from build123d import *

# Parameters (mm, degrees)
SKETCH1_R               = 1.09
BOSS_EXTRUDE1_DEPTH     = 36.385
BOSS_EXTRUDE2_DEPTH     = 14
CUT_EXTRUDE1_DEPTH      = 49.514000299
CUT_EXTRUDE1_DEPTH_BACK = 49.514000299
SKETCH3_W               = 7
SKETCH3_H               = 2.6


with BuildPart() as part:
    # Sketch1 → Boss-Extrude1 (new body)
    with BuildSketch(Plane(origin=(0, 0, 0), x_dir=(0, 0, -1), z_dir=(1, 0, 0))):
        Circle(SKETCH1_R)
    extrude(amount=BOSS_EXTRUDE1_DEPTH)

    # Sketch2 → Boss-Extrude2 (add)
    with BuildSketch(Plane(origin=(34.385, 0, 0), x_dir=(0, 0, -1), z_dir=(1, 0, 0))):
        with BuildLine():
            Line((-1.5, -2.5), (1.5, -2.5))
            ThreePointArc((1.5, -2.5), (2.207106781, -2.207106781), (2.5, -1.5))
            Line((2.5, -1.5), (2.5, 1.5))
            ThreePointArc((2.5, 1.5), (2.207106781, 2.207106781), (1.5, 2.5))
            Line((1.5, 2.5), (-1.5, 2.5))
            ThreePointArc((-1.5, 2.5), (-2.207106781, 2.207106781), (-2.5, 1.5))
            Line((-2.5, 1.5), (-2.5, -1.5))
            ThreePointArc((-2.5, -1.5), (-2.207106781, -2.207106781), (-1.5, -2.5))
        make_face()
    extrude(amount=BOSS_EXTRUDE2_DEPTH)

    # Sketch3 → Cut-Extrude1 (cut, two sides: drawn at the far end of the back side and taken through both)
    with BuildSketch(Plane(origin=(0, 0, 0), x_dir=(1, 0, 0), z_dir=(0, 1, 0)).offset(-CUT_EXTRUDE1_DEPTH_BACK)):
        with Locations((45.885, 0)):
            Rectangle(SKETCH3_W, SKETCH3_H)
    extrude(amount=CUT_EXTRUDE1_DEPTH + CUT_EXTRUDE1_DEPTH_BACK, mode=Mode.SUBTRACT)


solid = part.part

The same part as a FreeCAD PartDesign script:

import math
import FreeCAD as App
import Part
import Sketcher

V = App.Vector


def add_polygon(sketch, points):
    """Adds a closed chain of lines whose ends are joined by coincident constraints."""
    first, n = sketch.GeometryCount, len(points)
    for a, b in zip(points, points[1:] + points[:1]):
        sketch.addGeometry(Part.LineSegment(App.Vector(*a, 0), App.Vector(*b, 0)), False)
    for i in range(n):
        sketch.addConstraint(Sketcher.Constraint("Coincident", first + i, 2, first + (i + 1) % n, 1))

doc = App.newDocument("Part")
body = doc.addObject("PartDesign::Body", "Body")

sketch1 = doc.addObject("Sketcher::SketchObject", "Sketch")
body.addObject(sketch1)
sketch1.AttachmentSupport = (doc.YZ_Plane, [""])
sketch1.MapMode = "FlatFace"
sketch1.addGeometry(Part.Circle(V(0, 0, 0), V(0, 0, 1), 1.1), False)
sketch1.addConstraint([
    Sketcher.Constraint("Coincident", 0, 3, -1, 1),
    Sketcher.Constraint("Diameter", 0, 2.18),
])
pad1 = doc.addObject("PartDesign::Pad", "Pad")
body.addObject(pad1)
pad1.Profile = sketch1
pad1.Length = 36.385

sketch2 = doc.addObject("Sketcher::SketchObject", "Sketch001")
body.addObject(sketch2)
sketch2.AttachmentSupport = (doc.YZ_Plane, [""])
sketch2.MapMode = "FlatFace"
sketch2.AttachmentOffset = App.Placement(V(0, 0, 34.385), App.Rotation())
sketch2.addGeometry([
    Part.LineSegment(V(-2.5, 1.5, 0), V(-2.5, -1.5, 0)),
    Part.ArcOfCircle(Part.Circle(V(-1.5, -1.5, 0), V(0, 0, 1), 1), math.radians(-180), math.radians(-90)),
    Part.LineSegment(V(-1.5, -2.5, 0), V(1.5, -2.5, 0)),
    Part.ArcOfCircle(Part.Circle(V(1.5, -1.5, 0), V(0, 0, 1), 1), math.radians(-90), math.radians(0)),
    Part.LineSegment(V(2.5, -1.5, 0), V(2.5, 1.5, 0)),
    Part.ArcOfCircle(Part.Circle(V(1.5, 1.5, 0), V(0, 0, 1), 1), math.radians(0), math.radians(90)),
    Part.LineSegment(V(1.5, 2.5, 0), V(-1.5, 2.5, 0)),
    Part.ArcOfCircle(Part.Circle(V(-1.5, 1.5, 0), V(0, 0, 1), 1), math.radians(90), math.radians(180)),
], False)
sketch2.addConstraint([
    Sketcher.Constraint("Tangent", 0, 2, 1, 1),
    Sketcher.Constraint("Tangent", 1, 2, 2, 1),
    Sketcher.Constraint("Tangent", 2, 2, 3, 1),
    Sketcher.Constraint("Tangent", 3, 2, 4, 1),
    Sketcher.Constraint("Tangent", 4, 2, 5, 1),
    Sketcher.Constraint("Tangent", 5, 2, 6, 1),
    Sketcher.Constraint("Tangent", 6, 2, 7, 1),
    Sketcher.Constraint("Tangent", 7, 2, 0, 1),
    Sketcher.Constraint("Vertical", 0),
    Sketcher.Constraint("Horizontal", 2),
    Sketcher.Constraint("Vertical", 4),
    Sketcher.Constraint("Horizontal", 6),
    Sketcher.Constraint("Equal", 1, 3),
    Sketcher.Constraint("Equal", 3, 5),
    Sketcher.Constraint("Equal", 5, 7),
    Sketcher.Constraint("Symmetric", 1, 3, 5, 3, -1, 1),
    Sketcher.Constraint("Equal", 6, 0),
    Sketcher.Constraint("Radius", 1, 1.0),
    Sketcher.Constraint("DistanceX", 2, 1, 2, 2, 3.0),
])
pad2 = doc.addObject("PartDesign::Pad", "Pad001")
body.addObject(pad2)
pad2.Profile = sketch2
pad2.Length = 14

sketch3 = doc.addObject("Sketcher::SketchObject", "Sketch002")
body.addObject(sketch3)
sketch3.AttachmentSupport = (doc.XZ_Plane, [""])
sketch3.MapMode = "FlatFace"
add_polygon(sketch3, [(42.4, -1.3), (42.4, 1.3), (49.4, 1.3), (49.4, -1.3)])
sketch3.addConstraint([
    Sketcher.Constraint("Vertical", 0),
    Sketcher.Constraint("Horizontal", 1),
    Sketcher.Constraint("Vertical", 2),
    Sketcher.Constraint("Horizontal", 3),
    Sketcher.Constraint("DistanceX", 1, 1, 1, 2, 7.0),
    Sketcher.Constraint("DistanceY", 0, 1, 0, 2, 2.6),
    Sketcher.Constraint("DistanceY", -1, 1, 0, 2, 1.3),
    Sketcher.Constraint("DistanceX", -1, 1, 0, 2, 42.385),
])
pocket1 = doc.addObject("PartDesign::Pocket", "Pocket")
body.addObject(pocket1)
pocket1.Profile = sketch3
pocket1.Type = "ThroughAll"
pocket1.Midplane = True

doc.recompute()
